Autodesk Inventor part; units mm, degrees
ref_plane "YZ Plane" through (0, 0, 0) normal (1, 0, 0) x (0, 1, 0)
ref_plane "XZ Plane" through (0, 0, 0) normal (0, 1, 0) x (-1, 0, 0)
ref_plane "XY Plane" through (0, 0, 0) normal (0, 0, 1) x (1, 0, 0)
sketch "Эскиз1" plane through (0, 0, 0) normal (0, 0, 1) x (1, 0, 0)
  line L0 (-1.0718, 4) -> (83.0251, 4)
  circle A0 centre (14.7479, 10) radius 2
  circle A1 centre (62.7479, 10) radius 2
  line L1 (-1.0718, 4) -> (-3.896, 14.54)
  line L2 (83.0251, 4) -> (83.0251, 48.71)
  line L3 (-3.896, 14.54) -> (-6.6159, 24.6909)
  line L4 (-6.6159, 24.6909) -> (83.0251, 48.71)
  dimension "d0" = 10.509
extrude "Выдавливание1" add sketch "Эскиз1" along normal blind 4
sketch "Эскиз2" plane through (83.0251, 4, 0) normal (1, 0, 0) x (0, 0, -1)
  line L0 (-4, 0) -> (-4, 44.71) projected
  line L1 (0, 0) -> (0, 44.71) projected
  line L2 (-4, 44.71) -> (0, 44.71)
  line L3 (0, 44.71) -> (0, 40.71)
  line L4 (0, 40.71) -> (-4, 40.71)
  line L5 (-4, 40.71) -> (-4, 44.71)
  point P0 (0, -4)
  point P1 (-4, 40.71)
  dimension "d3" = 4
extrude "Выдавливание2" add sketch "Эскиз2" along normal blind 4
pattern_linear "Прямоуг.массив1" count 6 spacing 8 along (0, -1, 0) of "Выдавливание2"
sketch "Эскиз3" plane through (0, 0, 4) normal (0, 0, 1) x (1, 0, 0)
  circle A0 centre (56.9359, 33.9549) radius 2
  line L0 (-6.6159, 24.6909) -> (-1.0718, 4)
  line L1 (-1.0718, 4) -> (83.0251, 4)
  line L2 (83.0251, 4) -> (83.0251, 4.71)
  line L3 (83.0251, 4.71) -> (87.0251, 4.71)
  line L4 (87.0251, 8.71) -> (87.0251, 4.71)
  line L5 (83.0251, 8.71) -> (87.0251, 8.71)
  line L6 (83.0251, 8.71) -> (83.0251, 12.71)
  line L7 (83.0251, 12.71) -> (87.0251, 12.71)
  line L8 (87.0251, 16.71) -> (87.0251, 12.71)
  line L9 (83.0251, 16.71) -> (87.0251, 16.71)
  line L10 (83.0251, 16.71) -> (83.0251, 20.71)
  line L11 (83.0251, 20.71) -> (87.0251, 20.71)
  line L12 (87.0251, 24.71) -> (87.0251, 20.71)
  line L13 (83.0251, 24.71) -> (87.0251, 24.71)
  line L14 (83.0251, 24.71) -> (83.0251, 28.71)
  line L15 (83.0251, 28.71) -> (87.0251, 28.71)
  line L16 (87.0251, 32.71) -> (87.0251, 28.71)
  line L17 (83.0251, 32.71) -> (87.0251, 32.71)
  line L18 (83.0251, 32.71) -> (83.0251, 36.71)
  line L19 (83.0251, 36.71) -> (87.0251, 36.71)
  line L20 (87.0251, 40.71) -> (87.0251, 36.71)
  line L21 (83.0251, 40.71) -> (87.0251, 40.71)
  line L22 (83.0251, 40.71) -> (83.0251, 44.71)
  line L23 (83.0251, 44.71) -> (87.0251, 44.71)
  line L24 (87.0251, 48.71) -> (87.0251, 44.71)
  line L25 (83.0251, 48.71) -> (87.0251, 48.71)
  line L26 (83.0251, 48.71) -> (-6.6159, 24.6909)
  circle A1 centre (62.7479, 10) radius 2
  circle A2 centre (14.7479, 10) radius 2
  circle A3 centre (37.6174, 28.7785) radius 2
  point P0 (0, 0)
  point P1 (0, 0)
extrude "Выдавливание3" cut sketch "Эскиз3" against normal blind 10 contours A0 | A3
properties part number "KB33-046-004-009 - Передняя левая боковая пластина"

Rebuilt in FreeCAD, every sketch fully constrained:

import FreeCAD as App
import Part
import Sketcher
from FreeCAD import Vector
Q = App.Units.Quantity

doc = App.newDocument("Part")
body = doc.addObject("PartDesign::Body", "Body")

sketch1 = body.newObject("Sketcher::SketchObject", "Sketch")
sketch1.AttachmentSupport = (doc.getObject("XY_Plane"), [""])
sketch1.MapMode = "FlatFace"
sketch1.addGeometry(Part.LineSegment(Vector(-3.896, 14.54, 0), Vector(-1.0718, 4, 0)), False)
sketch1.addGeometry(Part.LineSegment(Vector(-1.0718, 4, 0), Vector(83.0251, 4, 0)), False)
sketch1.addGeometry(Part.LineSegment(Vector(83.0251, 4, 0), Vector(83.0251, 48.71, 0)), False)
sketch1.addGeometry(Part.LineSegment(Vector(83.0251, 48.71, 0), Vector(-6.6159, 24.6909, 0)), False)
sketch1.addGeometry(Part.LineSegment(Vector(-6.6159, 24.6909, 0), Vector(-3.896, 14.54, 0)), False)
sketch1.addGeometry(Part.Circle(Vector(14.7479, 10, 0), Vector(0, 0, 1), 2), False)
sketch1.addGeometry(Part.Circle(Vector(62.7479, 10, 0), Vector(0, 0, 1), 2), False)
sketch1.addConstraint(Sketcher.Constraint("Coincident", 0, 2, 1, 1))
sketch1.addConstraint(Sketcher.Constraint("Coincident", 1, 2, 2, 1))
sketch1.addConstraint(Sketcher.Constraint("Coincident", 2, 2, 3, 1))
sketch1.addConstraint(Sketcher.Constraint("Coincident", 3, 2, 4, 1))
sketch1.addConstraint(Sketcher.Constraint("Coincident", 4, 2, 0, 1))
sketch1.addConstraint(Sketcher.Constraint("Horizontal", 1))
sketch1.addConstraint(Sketcher.Constraint("Vertical", 2))
sketch1.addConstraint(Sketcher.Constraint("Equal", 5, 6))
sketch1.addConstraint(Sketcher.Constraint("Perpendicular", 0, 3))
sketch1.addConstraint(Sketcher.Constraint("Perpendicular", 3, 4))
sketch1.addConstraint(Sketcher.Constraint("Horizontal", 5, 3, 6, 3))
sketch1.addConstraint(Sketcher.Constraint("Diameter", 5, 4.0))
sketch1.addConstraint(Sketcher.Constraint("Angle", 0, Q("-75 deg")))
sketch1.addConstraint(Sketcher.Constraint("Distance", 4, 10.509))
sketch1.addConstraint(Sketcher.Constraint("DistanceY", -1, 1, 5, 3, 10.0))
sketch1.addConstraint(Sketcher.Constraint("DistanceY", -1, 1, 0, 2, 4.0))
sketch1.addConstraint(Sketcher.Constraint("DistanceX", 5, 3, 6, 3, 48.0))
sketch1.addConstraint(Sketcher.Constraint("DistanceY", 2, 1, 2, 2, 44.71))
sketch1.addConstraint(Sketcher.Constraint("DistanceX", 1, 1, 1, 2, 84.097))
sketch1.addConstraint(Sketcher.Constraint("DistanceX", -1, 1, 5, 3, 14.748))
sketch1.addConstraint(Sketcher.Constraint("DistanceX", -1, 1, 1, 2, 83.025))
pad1 = body.newObject("PartDesign::Pad", "Pad")
pad1.Profile = sketch1
pad1.Length = 4

sketch2 = body.newObject("Sketcher::SketchObject", "Sketch001")
sketch2.AttachmentSupport = (doc.getObject("YZ_Plane"), [""])
sketch2.MapMode = "FlatFace"
sketch2.AttachmentOffset = App.Placement(Vector(0, 0, 83.0251), App.Rotation())
sketch2.addGeometry(Part.LineSegment(Vector(48.71, 4, 0), Vector(44.71, 4, 0)), False)
sketch2.addGeometry(Part.LineSegment(Vector(44.71, 4, 0), Vector(44.71, 0, 0)), False)
sketch2.addGeometry(Part.LineSegment(Vector(44.71, 0, 0), Vector(48.71, 0, 0)), False)
sketch2.addGeometry(Part.LineSegment(Vector(48.71, 0, 0), Vector(48.71, 4, 0)), False)
sketch2.addConstraint(Sketcher.Constraint("Coincident", 0, 2, 1, 1))
sketch2.addConstraint(Sketcher.Constraint("Coincident", 1, 2, 2, 1))
sketch2.addConstraint(Sketcher.Constraint("Coincident", 2, 2, 3, 1))
sketch2.addConstraint(Sketcher.Constraint("Coincident", 3, 2, 0, 1))
sketch2.addConstraint(Sketcher.Constraint("Horizontal", 0))
sketch2.addConstraint(Sketcher.Constraint("Vertical", 1))
sketch2.addConstraint(Sketcher.Constraint("Horizontal", 2))
sketch2.addConstraint(Sketcher.Constraint("Vertical", 3))
sketch2.addConstraint(Sketcher.Constraint("PointOnObject", 1, 2, -1))
sketch2.addConstraint(Sketcher.Constraint("Equal", 2, 1))
sketch2.addConstraint(Sketcher.Constraint("DistanceX", 0, 2, 0, 1, 4.0))
sketch2.addConstraint(Sketcher.Constraint("DistanceX", -1, 1, 0, 2, 44.71))
pad2 = body.newObject("PartDesign::Pad", "Pad001")
pad2.Profile = sketch2
pad2.Length = 4
doc.recompute()

linearpattern = body.newObject("PartDesign::LinearPattern", "LinearPattern")
linearpattern.Originals = [pad2]
linearpattern.Direction = (doc.getObject("Y_Axis"), [""])
linearpattern.Mode = "offset"
linearpattern.Offset = 8
linearpattern.Occurrences = 6
linearpattern.Reversed = True
body.Tip = linearpattern

sketch3 = body.newObject("Sketcher::SketchObject", "Sketch002")
sketch3.AttachmentSupport = (doc.getObject("XY_Plane"), [""])
sketch3.MapMode = "FlatFace"
sketch3.AttachmentOffset = App.Placement(Vector(0, 0, 4), App.Rotation())
sketch3.addGeometry(Part.Circle(Vector(56.9359, 33.9549, 0), Vector(0, 0, 1), 2), False)
sketch3.addGeometry(Part.Circle(Vector(37.6174, 28.7785, 0), Vector(0, 0, 1), 2), False)
sketch3.addConstraint(Sketcher.Constraint("Equal", 0, 1))
sketch3.addConstraint(Sketcher.Constraint("Diameter", 0, 4.0))
sketch3.addConstraint(Sketcher.Constraint("DistanceX", -1, 1, 0, 3, 56.936))
sketch3.addConstraint(Sketcher.Constraint("DistanceY", -1, 1, 0, 3, 33.955))
sketch3.addConstraint(Sketcher.Constraint("DistanceX", -1, 1, 1, 3, 37.6174))
sketch3.addConstraint(Sketcher.Constraint("DistanceY", -1, 1, 1, 3, 28.7785))
pocket1 = body.newObject("PartDesign::Pocket", "Pocket")
pocket1.Profile = sketch3
pocket1.Length = 10

doc.recompute()
